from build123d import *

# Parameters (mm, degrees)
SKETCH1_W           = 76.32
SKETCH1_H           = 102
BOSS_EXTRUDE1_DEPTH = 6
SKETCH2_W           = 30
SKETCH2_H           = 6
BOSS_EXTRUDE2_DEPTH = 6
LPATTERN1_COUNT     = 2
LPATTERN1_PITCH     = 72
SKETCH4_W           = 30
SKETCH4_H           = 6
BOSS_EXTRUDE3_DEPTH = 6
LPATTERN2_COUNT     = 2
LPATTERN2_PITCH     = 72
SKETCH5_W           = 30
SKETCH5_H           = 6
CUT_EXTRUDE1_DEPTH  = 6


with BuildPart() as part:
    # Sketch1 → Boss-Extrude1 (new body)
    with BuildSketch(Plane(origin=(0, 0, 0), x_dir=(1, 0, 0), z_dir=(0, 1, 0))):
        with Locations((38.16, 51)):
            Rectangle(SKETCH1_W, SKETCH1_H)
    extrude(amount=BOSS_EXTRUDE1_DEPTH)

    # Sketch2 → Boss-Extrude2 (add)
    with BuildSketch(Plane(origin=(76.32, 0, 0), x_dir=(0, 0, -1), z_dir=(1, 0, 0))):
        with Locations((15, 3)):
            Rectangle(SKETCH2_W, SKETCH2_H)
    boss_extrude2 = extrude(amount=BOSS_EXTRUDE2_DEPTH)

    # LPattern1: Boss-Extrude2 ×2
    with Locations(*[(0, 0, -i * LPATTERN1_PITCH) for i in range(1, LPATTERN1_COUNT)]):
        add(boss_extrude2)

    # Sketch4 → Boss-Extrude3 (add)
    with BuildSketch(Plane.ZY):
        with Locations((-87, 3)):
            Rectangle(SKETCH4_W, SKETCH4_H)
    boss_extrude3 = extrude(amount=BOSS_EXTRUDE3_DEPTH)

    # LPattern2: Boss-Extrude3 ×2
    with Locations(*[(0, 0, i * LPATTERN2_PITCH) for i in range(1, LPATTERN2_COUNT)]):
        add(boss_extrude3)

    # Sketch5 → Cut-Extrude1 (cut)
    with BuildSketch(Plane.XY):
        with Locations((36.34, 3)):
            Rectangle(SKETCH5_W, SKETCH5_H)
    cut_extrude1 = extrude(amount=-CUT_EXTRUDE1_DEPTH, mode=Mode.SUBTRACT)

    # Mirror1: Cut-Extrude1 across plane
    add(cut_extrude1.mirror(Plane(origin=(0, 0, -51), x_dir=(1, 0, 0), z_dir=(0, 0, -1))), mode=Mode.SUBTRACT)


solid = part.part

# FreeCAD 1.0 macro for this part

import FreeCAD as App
import Part
import Sketcher
from FreeCAD import Vector
Q = App.Units.Quantity

doc = App.newDocument("Part")
params = doc.addObject("Spreadsheet::Sheet", "Params")
for row, (alias, value) in enumerate([
    ("sketch1_height", "102 mm"),
    ("sketch1_width", "76.32 mm"),
    ("pad1_length", "6 mm"),
    ("sketch2_width", "6 mm"),
    ("sketch2_height", "30 mm"),
    ("pad2_length", "6 mm"),
    ("linearpattern_pitch", "72 mm"),
    ("sketch3_width", "6 mm"),
    ("sketch3_height", "30 mm"),
    ("pad3_length", "6 mm"),
    ("linearpattern2_pitch", "72 mm"),
    ("sketch4_width", "30 mm"),
    ("sketch4_height", "6 mm"),
    ("pocket1_length", "6 mm"),
], start=1):
    params.set(f"A{row}", alias)
    params.set(f"B{row}", "=" + value)
    params.setAlias(f"B{row}", alias)

body = doc.addObject("PartDesign::Body", "Body")

sketch1 = body.newObject("Sketcher::SketchObject", "Sketch")
sketch1.AttachmentSupport = (doc.getObject("XZ_Plane"), [""])
sketch1.MapMode = "FlatFace"
sketch1.addGeometry(Part.LineSegment(Vector(0, -102, 0), Vector(0, 0, 0)), False)
sketch1.addGeometry(Part.LineSegment(Vector(0, 0, 0), Vector(76, 0, 0)), False)
sketch1.addGeometry(Part.LineSegment(Vector(76, 0, 0), Vector(76, -102, 0)), False)
sketch1.addGeometry(Part.LineSegment(Vector(76, -102, 0), Vector(0, -102, 0)), False)
sketch1.addConstraint(Sketcher.Constraint("Coincident", 0, 2, 1, 1))
sketch1.addConstraint(Sketcher.Constraint("Coincident", 1, 2, 2, 1))
sketch1.addConstraint(Sketcher.Constraint("Coincident", 2, 2, 3, 1))
sketch1.addConstraint(Sketcher.Constraint("Coincident", 3, 2, 0, 1))
sketch1.addConstraint(Sketcher.Constraint("Vertical", 0))
sketch1.addConstraint(Sketcher.Constraint("Horizontal", 1))
sketch1.addConstraint(Sketcher.Constraint("Vertical", 2))
sketch1.addConstraint(Sketcher.Constraint("Horizontal", 3))
sketch1.addConstraint(Sketcher.Constraint("Coincident", 0, 2, -1, 1))
sketch1.addConstraint(Sketcher.Constraint("DistanceY", 0, 1, 0, 2, Q("102 mm")))
sketch1.addConstraint(Sketcher.Constraint("DistanceX", 1, 1, 1, 2, Q("76.32 mm")))
sketch1.setExpression("Constraints[9]", "Params.sketch1_height")
sketch1.setExpression("Constraints[10]", "Params.sketch1_width")
pad1 = body.newObject("PartDesign::Pad", "Pad")
pad1.Profile = sketch1
pad1.setExpression("Length", "Params.pad1_length")
pad1.Reversed = True

sketch2 = body.newObject("Sketcher::SketchObject", "Sketch001")
sketch2.AttachmentSupport = (doc.getObject("YZ_Plane"), [""])
sketch2.MapMode = "FlatFace"
sketch2.AttachmentOffset = App.Placement(Vector(0, 0, 76.32), App.Rotation())
sketch2.addGeometry(Part.LineSegment(Vector(6, 0, 0), Vector(0, 0, 0)), False)
sketch2.addGeometry(Part.LineSegment(Vector(0, 0, 0), Vector(0, -30, 0)), False)
sketch2.addGeometry(Part.LineSegment(Vector(0, -30, 0), Vector(6, -30, 0)), False)
sketch2.addGeometry(Part.LineSegment(Vector(6, -30, 0), Vector(6, 0, 0)), False)
sketch2.addConstraint(Sketcher.Constraint("Coincident", 0, 2, 1, 1))
sketch2.addConstraint(Sketcher.Constraint("Coincident", 1, 2, 2, 1))
sketch2.addConstraint(Sketcher.Constraint("Coincident", 2, 2, 3, 1))
sketch2.addConstraint(Sketcher.Constraint("Coincident", 3, 2, 0, 1))
sketch2.addConstraint(Sketcher.Constraint("Horizontal", 0))
sketch2.addConstraint(Sketcher.Constraint("Vertical", 1))
sketch2.addConstraint(Sketcher.Constraint("Horizontal", 2))
sketch2.addConstraint(Sketcher.Constraint("Vertical", 3))
sketch2.addConstraint(Sketcher.Constraint("Coincident", 0, 2, -1, 1))
sketch2.addConstraint(Sketcher.Constraint("DistanceX", 0, 2, 0, 1, Q("6 mm")))
sketch2.addConstraint(Sketcher.Constraint("DistanceY", 1, 2, 1, 1, Q("30 mm")))
sketch2.setExpression("Constraints[9]", "Params.sketch2_width")
sketch2.setExpression("Constraints[10]", "Params.sketch2_height")
pad2 = body.newObject("PartDesign::Pad", "Pad001")
pad2.Profile = sketch2
pad2.setExpression("Length", "Params.pad2_length")
doc.recompute()

linearpattern = body.newObject("PartDesign::LinearPattern", "LinearPattern")
linearpattern.Originals = [pad2]
linearpattern.Direction = (doc.getObject("Z_Axis"), [""])
linearpattern.Mode = "offset"
linearpattern.setExpression("Offset", "Params.linearpattern_pitch")
linearpattern.Occurrences = 2
linearpattern.Reversed = True
body.Tip = linearpattern

sketch3 = body.newObject("Sketcher::SketchObject", "Sketch002")
sketch3.AttachmentSupport = (doc.getObject("YZ_Plane"), [""])
sketch3.MapMode = "FlatFace"
sketch3.addGeometry(Part.LineSegment(Vector(6, -102, 0), Vector(0, -102, 0)), False)
sketch3.addGeometry(Part.LineSegment(Vector(0, -102, 0), Vector(0, -72, 0)), False)
sketch3.addGeometry(Part.LineSegment(Vector(0, -72, 0), Vector(6, -72, 0)), False)
sketch3.addGeometry(Part.LineSegment(Vector(6, -72, 0), Vector(6, -102, 0)), False)
sketch3.addConstraint(Sketcher.Constraint("Coincident", 0, 2, 1, 1))
sketch3.addConstraint(Sketcher.Constraint("Coincident", 1, 2, 2, 1))
sketch3.addConstraint(Sketcher.Constraint("Coincident", 2, 2, 3, 1))
sketch3.addConstraint(Sketcher.Constraint("Coincident", 3, 2, 0, 1))
sketch3.addConstraint(Sketcher.Constraint("Horizontal", 0))
sketch3.addConstraint(Sketcher.Constraint("Vertical", 1))
sketch3.addConstraint(Sketcher.Constraint("Horizontal", 2))
sketch3.addConstraint(Sketcher.Constraint("Vertical", 3))
sketch3.addConstraint(Sketcher.Constraint("PointOnObject", 0, 2, -2))
sketch3.addConstraint(Sketcher.Constraint("DistanceX", 0, 2, 0, 1, Q("6 mm")))
sketch3.addConstraint(Sketcher.Constraint("DistanceY", 1, 1, 1, 2, Q("30 mm")))
sketch3.addConstraint(Sketcher.Constraint("DistanceY", 0, 2, -1, 1, Q("102 mm")))
sketch3.setExpression("Constraints[9]", "Params.sketch3_width")
sketch3.setExpression("Constraints[10]", "Params.sketch3_height")
pad3 = body.newObject("PartDesign::Pad", "Pad002")
pad3.Profile = sketch3
pad3.setExpression("Length", "Params.pad3_length")
pad3.Reversed = True
doc.recompute()

linearpattern2 = body.newObject("PartDesign::LinearPattern", "LinearPattern001")
linearpattern2.Originals = [pad3]
linearpattern2.Direction = (doc.getObject("Z_Axis"), [""])
linearpattern2.Mode = "offset"
linearpattern2.setExpression("Offset", "Params.linearpattern2_pitch")
linearpattern2.Occurrences = 2
body.Tip = linearpattern2

sketch4 = body.newObject("Sketcher::SketchObject", "Sketch003")
sketch4.AttachmentSupport = (doc.getObject("XY_Plane"), [""])
sketch4.MapMode = "FlatFace"
sketch4.addGeometry(Part.LineSegment(Vector(21, 6, 0), Vector(21, 0, 0)), False)
sketch4.addGeometry(Part.LineSegment(Vector(21, 0, 0), Vector(51, 0, 0)), False)
sketch4.addGeometry(Part.LineSegment(Vector(51, 0, 0), Vector(51, 6, 0)), False)
sketch4.addGeometry(Part.LineSegment(Vector(51, 6, 0), Vector(21, 6, 0)), False)
sketch4.addConstraint(Sketcher.Constraint("Coincident", 0, 2, 1, 1))
sketch4.addConstraint(Sketcher.Constraint("Coincident", 1, 2, 2, 1))
sketch4.addConstraint(Sketcher.Constraint("Coincident", 2, 2, 3, 1))
sketch4.addConstraint(Sketcher.Constraint("Coincident", 3, 2, 0, 1))
sketch4.addConstraint(Sketcher.Constraint("Vertical", 0))
sketch4.addConstraint(Sketcher.Constraint("Horizontal", 1))
sketch4.addConstraint(Sketcher.Constraint("Vertical", 2))
sketch4.addConstraint(Sketcher.Constraint("Horizontal", 3))
sketch4.addConstraint(Sketcher.Constraint("PointOnObject", 0, 2, -1))
sketch4.addConstraint(Sketcher.Constraint("DistanceX", 1, 1, 1, 2, Q("30 mm")))
sketch4.addConstraint(Sketcher.Constraint("DistanceY", 0, 2, 0, 1, Q("6 mm")))
sketch4.addConstraint(Sketcher.Constraint("DistanceX", -1, 1, 0, 2, Q("21.34 mm")))
sketch4.setExpression("Constraints[9]", "Params.sketch4_width")
sketch4.setExpression("Constraints[10]", "Params.sketch4_height")
pocket1 = body.newObject("PartDesign::Pocket", "Pocket")
pocket1.Profile = sketch4
pocket1.setExpression("Length", "Params.pocket1_length")
doc.recompute()

datumplane = body.newObject("PartDesign::Plane", "DatumPlane")
datumplane.AttachmentSupport = (doc.getObject("XY_Plane"), [""])
datumplane.MapMode = "FlatFace"
datumplane.AttachmentOffset = App.Placement(Vector(0, 0, -51), App.Rotation())
mirrored = body.newObject("PartDesign::Mirrored", "Mirrored")
mirrored.Originals = [pocket1]
mirrored.MirrorPlane = (datumplane, [""])
body.Tip = mirrored

doc.recompute()
